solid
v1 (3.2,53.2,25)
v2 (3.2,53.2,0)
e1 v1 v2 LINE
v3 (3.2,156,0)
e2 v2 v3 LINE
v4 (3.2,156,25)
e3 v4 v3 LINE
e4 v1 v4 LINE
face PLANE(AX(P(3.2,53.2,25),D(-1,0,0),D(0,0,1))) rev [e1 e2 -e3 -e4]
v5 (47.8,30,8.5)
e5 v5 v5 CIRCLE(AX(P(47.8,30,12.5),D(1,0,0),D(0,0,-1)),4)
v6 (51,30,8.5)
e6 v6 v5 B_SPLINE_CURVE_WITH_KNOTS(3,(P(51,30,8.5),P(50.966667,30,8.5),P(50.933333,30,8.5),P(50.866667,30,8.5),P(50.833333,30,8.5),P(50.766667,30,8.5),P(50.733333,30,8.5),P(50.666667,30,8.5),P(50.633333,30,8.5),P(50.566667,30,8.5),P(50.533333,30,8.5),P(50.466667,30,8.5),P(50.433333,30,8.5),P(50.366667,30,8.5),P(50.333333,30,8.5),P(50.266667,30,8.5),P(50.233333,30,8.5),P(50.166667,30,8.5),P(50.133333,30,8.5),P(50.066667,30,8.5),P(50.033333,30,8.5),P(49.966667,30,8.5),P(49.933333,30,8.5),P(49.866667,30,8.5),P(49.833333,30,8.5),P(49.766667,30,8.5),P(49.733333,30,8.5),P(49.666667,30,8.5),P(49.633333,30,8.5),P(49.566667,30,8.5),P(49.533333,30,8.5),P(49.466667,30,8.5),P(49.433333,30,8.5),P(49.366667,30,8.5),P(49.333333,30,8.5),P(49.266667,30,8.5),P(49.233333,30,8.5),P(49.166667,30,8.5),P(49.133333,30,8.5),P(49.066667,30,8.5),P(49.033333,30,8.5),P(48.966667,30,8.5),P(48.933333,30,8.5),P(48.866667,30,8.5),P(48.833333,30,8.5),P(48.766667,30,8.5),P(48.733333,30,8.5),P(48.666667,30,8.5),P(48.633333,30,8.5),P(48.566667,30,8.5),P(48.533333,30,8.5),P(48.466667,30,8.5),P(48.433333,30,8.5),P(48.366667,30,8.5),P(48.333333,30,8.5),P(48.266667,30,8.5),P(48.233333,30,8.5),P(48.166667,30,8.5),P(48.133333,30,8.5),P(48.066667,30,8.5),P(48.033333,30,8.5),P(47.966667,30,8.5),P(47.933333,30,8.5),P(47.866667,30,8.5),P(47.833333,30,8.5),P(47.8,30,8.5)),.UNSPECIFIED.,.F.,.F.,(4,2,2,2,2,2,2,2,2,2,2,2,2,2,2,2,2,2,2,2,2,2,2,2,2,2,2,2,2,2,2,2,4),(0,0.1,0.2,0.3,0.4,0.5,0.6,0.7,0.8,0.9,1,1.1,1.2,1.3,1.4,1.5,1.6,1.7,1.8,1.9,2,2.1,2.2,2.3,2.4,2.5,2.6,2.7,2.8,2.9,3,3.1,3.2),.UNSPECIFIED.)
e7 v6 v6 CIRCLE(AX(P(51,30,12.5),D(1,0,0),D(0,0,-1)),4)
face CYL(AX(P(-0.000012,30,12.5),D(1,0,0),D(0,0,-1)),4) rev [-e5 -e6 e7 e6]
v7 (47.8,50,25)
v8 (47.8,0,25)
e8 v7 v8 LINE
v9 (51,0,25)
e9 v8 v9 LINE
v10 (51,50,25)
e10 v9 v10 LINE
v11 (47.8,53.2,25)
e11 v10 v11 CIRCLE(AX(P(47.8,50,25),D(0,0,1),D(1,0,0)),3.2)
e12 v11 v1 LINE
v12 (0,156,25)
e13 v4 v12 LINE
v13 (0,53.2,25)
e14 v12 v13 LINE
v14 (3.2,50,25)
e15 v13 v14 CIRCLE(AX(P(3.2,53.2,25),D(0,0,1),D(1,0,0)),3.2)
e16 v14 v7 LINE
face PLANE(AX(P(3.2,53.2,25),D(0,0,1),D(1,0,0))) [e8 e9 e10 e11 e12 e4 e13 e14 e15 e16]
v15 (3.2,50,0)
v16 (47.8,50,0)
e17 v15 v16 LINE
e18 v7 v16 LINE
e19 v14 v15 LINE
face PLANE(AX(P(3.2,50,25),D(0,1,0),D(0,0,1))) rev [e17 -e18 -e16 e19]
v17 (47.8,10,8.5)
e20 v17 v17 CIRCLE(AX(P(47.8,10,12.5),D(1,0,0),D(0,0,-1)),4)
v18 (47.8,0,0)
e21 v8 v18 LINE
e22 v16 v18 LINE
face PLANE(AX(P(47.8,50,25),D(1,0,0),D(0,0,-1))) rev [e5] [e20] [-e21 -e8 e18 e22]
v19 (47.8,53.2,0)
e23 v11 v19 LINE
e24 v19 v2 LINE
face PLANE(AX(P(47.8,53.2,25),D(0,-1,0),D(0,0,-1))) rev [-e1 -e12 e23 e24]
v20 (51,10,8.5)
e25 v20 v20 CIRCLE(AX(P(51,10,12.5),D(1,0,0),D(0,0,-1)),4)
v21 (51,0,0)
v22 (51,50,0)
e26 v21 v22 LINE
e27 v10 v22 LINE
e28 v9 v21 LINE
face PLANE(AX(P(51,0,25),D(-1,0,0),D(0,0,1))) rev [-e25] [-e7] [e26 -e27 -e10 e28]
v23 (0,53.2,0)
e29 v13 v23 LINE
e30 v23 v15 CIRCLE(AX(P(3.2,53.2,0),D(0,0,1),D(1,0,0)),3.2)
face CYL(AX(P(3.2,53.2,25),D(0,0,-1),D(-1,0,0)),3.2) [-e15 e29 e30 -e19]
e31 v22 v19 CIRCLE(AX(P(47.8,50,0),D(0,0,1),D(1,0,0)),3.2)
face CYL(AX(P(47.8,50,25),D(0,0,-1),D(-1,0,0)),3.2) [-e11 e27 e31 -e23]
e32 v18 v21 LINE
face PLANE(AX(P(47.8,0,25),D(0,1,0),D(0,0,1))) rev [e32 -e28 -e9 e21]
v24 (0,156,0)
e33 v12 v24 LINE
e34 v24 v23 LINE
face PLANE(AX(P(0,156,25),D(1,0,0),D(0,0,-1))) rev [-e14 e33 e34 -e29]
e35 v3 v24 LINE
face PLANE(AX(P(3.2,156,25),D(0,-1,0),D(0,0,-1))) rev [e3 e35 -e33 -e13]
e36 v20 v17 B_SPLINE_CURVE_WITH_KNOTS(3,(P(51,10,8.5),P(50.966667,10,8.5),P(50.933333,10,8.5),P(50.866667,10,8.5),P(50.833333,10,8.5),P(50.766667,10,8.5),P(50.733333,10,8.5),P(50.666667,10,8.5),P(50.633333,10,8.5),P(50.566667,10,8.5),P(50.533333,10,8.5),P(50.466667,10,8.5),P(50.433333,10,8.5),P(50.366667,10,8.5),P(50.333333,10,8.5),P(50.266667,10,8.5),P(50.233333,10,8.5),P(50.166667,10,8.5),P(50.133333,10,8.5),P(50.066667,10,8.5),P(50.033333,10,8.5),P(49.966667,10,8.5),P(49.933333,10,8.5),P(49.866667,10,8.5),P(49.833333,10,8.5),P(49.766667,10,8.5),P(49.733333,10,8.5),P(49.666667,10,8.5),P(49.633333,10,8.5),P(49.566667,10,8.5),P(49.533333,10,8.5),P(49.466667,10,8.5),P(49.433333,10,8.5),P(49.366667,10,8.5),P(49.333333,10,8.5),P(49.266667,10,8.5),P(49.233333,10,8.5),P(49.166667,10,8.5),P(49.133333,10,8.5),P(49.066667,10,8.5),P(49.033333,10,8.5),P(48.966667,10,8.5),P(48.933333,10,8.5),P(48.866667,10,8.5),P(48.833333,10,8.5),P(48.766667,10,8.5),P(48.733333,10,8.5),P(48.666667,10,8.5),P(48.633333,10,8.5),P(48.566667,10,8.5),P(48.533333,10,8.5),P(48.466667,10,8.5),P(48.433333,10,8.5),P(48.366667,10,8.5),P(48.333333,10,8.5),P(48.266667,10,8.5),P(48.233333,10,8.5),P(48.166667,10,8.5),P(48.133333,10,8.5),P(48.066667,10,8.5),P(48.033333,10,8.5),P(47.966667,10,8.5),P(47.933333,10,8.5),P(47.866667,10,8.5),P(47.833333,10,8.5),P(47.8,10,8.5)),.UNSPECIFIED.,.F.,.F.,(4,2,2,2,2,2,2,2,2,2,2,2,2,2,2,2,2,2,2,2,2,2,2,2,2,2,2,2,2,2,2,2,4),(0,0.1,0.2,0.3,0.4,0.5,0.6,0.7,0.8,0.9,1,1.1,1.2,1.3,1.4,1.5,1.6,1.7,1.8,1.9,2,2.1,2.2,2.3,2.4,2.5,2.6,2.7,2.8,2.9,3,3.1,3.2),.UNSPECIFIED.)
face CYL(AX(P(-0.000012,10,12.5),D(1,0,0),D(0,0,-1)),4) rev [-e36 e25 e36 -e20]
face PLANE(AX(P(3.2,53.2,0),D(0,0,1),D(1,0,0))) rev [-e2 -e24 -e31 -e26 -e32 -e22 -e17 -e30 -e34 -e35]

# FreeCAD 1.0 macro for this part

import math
import FreeCAD as App
import Part
import Sketcher
Q = App.Units.Quantity

doc = App.newDocument("Part")
body = doc.addObject("PartDesign::Body", "Body")

sketch1 = body.newObject("Sketcher::SketchObject", "Sketch")
sketch1.AttachmentSupport = (doc.getObject("XY_Plane"), [""])
sketch1.MapMode = "FlatFace"
sketch1.addGeometry([
    Part.LineSegment(App.Vector(0, 156, 0), App.Vector(0, 53.2, 0)),
    Part.ArcOfCircle(Part.Circle(App.Vector(3.2, 53.2, 0), App.Vector(0, 0, 1), 3.2), math.radians(180), math.radians(270)),
    Part.LineSegment(App.Vector(3.2, 50, 0), App.Vector(47.8, 50, 0)),
    Part.LineSegment(App.Vector(47.8, 50, 0), App.Vector(47.8, 0, 0)),
    Part.LineSegment(App.Vector(47.8, 0, 0), App.Vector(51, 0, 0)),
    Part.LineSegment(App.Vector(51, 0, 0), App.Vector(51, 50, 0)),
    Part.ArcOfCircle(Part.Circle(App.Vector(47.8, 50, 0), App.Vector(0, 0, 1), 3.2), math.radians(0), math.radians(90)),
    Part.LineSegment(App.Vector(47.8, 53.2, 0), App.Vector(3.2, 53.2, 0)),
    Part.LineSegment(App.Vector(3.2, 53.2, 0), App.Vector(3.2, 156, 0)),
    Part.LineSegment(App.Vector(3.2, 156, 0), App.Vector(0, 156, 0)),
], False)
sketch1.addConstraint([
    Sketcher.Constraint("Tangent", 0, 2, 1, 1),
    Sketcher.Constraint("Tangent", 1, 2, 2, 1),
    Sketcher.Constraint("Coincident", 2, 2, 3, 1),
    Sketcher.Constraint("Coincident", 3, 2, 4, 1),
    Sketcher.Constraint("Coincident", 4, 2, 5, 1),
    Sketcher.Constraint("Tangent", 5, 2, 6, 1),
    Sketcher.Constraint("Tangent", 6, 2, 7, 1),
    Sketcher.Constraint("Coincident", 7, 2, 8, 1),
    Sketcher.Constraint("Coincident", 8, 2, 9, 1),
    Sketcher.Constraint("Coincident", 9, 2, 0, 1),
    Sketcher.Constraint("Vertical", 0),
    Sketcher.Constraint("Horizontal", 2),
    Sketcher.Constraint("Vertical", 3),
    Sketcher.Constraint("Horizontal", 4),
    Sketcher.Constraint("Vertical", 5),
    Sketcher.Constraint("Horizontal", 7),
    Sketcher.Constraint("Vertical", 8),
    Sketcher.Constraint("Horizontal", 9),
    Sketcher.Constraint("Coincident", 2, 2, 6, 3),
    Sketcher.Constraint("Coincident", 7, 2, 1, 3),
    Sketcher.Constraint("PointOnObject", 0, 2, -2),
    Sketcher.Constraint("PointOnObject", 3, 2, -1),
    Sketcher.Constraint("Radius", 1, Q("3.2 mm")),
    Sketcher.Constraint("DistanceY", 3, 2, 3, 1, Q("50 mm")),
    Sketcher.Constraint("DistanceX", 2, 1, 2, 2, Q("44.6 mm")),
    Sketcher.Constraint("DistanceY", 0, 2, 0, 1, Q("102.8 mm")),
])
pad1 = body.newObject("PartDesign::Pad", "Pad")
pad1.Profile = sketch1
pad1.Length = 25

sketch2 = body.newObject("Sketcher::SketchObject", "Sketch001")
sketch2.AttachmentSupport = (doc.getObject("YZ_Plane"), [""])
sketch2.MapMode = "FlatFace"
sketch2.addGeometry([
    Part.Circle(App.Vector(10, 12.5, 0), App.Vector(0, 0, 1), 4),
    Part.Circle(App.Vector(30, 12.5, 0), App.Vector(0, 0, 1), 4),
], False)
sketch2.addConstraint([
    Sketcher.Constraint("Equal", 0, 1),
    Sketcher.Constraint("Horizontal", 0, 3, 1, 3),
    Sketcher.Constraint("Diameter", 0, Q("8 mm")),
    Sketcher.Constraint("DistanceX", -1, 1, 0, 3, Q("10 mm")),
    Sketcher.Constraint("DistanceX", -1, 1, 1, 3, Q("30 mm")),
    Sketcher.Constraint("DistanceY", -1, 1, 0, 3, Q("12.5 mm")),
])
pocket1 = body.newObject("PartDesign::Pocket", "Pocket")
pocket1.Profile = sketch2
pocket1.Type = "ThroughAll"
pocket1.Midplane = True

doc.recompute()
